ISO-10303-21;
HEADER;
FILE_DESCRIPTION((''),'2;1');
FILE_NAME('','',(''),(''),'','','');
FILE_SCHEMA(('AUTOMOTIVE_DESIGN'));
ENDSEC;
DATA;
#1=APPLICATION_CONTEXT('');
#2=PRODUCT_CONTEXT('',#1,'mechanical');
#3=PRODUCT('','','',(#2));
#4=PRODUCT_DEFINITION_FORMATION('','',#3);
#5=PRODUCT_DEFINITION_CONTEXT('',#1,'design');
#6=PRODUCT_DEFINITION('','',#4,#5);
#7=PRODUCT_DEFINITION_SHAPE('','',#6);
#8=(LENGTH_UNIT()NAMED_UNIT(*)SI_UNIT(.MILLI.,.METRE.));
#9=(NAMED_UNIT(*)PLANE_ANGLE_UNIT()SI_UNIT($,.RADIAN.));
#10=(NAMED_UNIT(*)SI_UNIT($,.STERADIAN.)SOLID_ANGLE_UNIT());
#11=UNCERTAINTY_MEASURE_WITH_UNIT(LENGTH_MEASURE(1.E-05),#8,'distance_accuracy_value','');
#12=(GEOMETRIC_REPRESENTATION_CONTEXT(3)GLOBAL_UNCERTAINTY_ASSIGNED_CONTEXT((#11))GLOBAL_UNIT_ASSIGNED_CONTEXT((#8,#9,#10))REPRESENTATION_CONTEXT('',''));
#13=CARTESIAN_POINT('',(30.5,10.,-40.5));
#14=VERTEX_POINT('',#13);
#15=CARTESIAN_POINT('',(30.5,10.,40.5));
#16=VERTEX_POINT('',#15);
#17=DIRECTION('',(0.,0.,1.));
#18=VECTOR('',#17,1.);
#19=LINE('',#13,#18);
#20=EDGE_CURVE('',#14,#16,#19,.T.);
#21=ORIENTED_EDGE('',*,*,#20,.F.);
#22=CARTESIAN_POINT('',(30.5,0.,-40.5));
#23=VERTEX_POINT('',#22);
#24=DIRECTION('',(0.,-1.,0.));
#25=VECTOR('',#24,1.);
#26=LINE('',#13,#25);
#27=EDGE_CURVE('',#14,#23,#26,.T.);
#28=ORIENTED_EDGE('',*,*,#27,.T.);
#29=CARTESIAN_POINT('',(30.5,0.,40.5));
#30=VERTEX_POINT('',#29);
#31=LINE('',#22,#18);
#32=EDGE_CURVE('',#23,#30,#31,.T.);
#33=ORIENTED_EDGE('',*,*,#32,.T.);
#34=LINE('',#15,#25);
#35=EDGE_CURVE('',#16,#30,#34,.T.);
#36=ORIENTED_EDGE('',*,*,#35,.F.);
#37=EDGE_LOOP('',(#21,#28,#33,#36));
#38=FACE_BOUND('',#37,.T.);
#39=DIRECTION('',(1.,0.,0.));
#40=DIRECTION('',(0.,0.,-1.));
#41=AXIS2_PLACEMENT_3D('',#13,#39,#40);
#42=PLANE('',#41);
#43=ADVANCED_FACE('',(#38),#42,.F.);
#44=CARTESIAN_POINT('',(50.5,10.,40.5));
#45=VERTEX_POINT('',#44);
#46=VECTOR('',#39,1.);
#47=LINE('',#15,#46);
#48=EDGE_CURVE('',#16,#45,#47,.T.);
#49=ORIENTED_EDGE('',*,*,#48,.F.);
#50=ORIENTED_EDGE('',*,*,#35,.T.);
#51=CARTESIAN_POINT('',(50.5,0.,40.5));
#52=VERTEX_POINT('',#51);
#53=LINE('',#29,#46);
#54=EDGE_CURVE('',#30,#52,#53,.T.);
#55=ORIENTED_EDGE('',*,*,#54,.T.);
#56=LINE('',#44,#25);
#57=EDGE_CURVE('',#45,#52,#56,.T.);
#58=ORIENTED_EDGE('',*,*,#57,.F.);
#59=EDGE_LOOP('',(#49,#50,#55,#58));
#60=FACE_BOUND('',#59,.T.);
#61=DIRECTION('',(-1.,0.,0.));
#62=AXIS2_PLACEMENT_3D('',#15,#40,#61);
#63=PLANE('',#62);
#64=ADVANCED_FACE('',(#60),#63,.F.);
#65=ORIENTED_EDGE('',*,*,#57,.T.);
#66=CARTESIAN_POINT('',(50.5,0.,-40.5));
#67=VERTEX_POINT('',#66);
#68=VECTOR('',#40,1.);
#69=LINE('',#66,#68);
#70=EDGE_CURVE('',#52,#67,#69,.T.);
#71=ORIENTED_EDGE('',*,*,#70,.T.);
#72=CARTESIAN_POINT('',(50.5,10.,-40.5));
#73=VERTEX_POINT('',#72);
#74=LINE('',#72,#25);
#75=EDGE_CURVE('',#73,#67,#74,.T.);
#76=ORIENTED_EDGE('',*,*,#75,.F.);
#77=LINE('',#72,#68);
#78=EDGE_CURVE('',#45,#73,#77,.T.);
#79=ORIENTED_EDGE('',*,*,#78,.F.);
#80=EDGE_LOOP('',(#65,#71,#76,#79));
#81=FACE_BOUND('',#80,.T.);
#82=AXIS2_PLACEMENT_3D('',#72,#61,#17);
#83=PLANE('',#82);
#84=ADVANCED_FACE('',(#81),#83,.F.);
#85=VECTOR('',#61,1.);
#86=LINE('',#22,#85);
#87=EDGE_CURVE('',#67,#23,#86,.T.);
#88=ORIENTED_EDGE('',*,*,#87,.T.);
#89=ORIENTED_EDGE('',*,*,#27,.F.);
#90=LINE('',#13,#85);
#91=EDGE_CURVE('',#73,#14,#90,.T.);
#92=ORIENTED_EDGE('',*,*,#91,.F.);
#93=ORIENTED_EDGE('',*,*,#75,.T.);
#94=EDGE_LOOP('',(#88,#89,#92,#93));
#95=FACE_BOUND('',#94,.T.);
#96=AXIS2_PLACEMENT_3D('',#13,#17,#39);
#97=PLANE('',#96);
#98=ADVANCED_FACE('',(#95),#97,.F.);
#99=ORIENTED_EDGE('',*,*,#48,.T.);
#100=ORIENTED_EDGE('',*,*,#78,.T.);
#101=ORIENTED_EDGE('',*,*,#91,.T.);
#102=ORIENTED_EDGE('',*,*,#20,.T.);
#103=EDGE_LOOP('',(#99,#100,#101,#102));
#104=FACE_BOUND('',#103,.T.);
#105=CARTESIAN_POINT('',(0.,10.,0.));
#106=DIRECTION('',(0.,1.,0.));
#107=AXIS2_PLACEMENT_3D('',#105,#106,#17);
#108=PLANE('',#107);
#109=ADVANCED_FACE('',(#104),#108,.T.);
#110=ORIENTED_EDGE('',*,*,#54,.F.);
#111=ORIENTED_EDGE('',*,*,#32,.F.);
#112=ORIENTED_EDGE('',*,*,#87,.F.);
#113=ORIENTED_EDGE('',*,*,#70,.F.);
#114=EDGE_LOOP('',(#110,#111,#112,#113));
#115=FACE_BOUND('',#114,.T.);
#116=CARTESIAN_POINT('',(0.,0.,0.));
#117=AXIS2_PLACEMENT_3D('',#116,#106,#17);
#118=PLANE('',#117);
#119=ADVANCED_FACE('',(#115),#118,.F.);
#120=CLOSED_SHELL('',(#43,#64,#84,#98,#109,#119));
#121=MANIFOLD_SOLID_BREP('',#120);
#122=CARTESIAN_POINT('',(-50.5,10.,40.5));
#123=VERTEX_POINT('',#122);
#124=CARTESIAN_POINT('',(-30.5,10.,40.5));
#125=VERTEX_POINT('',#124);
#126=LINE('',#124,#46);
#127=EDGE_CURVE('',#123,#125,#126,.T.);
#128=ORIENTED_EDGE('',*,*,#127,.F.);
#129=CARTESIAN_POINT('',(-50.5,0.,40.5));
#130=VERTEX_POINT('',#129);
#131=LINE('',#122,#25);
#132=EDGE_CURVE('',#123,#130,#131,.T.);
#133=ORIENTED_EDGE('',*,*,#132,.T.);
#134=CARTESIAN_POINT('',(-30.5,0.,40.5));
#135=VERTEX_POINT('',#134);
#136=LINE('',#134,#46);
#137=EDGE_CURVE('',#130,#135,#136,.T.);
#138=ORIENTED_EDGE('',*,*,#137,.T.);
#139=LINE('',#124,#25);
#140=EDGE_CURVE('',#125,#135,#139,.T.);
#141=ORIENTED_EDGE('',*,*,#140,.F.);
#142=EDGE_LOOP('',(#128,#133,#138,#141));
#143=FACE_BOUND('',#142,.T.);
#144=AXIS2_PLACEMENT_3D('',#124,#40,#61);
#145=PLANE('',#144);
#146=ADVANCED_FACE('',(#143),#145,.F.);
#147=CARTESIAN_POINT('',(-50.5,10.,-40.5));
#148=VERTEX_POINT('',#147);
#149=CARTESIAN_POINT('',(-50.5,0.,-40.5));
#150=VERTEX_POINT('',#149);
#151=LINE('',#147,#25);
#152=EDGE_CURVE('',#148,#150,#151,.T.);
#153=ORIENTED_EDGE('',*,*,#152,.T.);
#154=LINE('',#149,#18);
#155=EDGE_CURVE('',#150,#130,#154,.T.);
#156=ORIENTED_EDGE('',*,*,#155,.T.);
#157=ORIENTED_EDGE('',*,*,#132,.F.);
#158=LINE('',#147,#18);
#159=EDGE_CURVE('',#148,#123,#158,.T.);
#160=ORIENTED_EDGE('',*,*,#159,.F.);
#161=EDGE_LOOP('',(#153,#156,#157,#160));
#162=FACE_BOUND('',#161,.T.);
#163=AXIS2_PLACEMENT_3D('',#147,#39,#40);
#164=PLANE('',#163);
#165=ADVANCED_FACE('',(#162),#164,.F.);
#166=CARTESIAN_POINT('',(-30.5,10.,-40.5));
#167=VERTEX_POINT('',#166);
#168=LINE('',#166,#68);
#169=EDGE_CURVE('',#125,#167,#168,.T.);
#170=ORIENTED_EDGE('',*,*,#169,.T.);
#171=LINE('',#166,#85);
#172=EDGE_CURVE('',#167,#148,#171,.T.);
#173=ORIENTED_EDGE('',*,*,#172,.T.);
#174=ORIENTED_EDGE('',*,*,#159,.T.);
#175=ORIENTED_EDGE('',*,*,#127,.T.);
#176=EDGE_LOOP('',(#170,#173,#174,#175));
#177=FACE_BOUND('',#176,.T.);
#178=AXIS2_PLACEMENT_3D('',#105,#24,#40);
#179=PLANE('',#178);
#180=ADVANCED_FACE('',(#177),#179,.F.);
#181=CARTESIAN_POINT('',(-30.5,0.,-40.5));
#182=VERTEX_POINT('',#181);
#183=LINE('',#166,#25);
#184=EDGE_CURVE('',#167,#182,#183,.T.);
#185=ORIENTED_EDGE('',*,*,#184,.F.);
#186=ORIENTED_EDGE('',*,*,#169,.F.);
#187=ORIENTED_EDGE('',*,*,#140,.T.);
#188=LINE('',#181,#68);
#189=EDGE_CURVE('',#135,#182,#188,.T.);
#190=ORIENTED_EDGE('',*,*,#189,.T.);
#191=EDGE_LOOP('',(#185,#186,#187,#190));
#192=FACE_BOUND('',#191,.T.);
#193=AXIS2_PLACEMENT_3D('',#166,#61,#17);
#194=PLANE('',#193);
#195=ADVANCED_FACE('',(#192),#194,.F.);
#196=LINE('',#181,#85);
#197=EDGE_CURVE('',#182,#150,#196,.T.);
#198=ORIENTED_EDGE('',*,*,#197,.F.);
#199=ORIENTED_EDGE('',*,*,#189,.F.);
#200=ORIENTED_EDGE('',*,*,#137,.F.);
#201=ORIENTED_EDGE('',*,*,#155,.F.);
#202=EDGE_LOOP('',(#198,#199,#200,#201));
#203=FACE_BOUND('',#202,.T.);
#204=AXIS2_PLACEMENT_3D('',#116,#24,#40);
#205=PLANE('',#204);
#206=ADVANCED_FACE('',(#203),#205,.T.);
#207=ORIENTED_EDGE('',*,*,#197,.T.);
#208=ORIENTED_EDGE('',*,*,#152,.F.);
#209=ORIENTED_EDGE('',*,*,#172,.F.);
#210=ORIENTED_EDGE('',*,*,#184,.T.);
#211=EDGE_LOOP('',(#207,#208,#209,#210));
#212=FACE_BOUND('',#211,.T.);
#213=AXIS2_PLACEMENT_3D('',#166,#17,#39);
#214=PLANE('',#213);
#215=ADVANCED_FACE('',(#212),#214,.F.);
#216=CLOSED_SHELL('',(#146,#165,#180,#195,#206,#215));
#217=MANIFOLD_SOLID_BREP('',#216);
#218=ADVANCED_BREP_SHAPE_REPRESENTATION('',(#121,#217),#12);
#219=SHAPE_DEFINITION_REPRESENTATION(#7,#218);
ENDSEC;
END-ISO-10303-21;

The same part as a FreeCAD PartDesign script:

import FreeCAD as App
import Part
import Sketcher

V = App.Vector


def add_polygon(sketch, points):
    """Adds a closed chain of lines whose ends are joined by coincident constraints."""
    first, n = sketch.GeometryCount, len(points)
    for a, b in zip(points, points[1:] + points[:1]):
        sketch.addGeometry(Part.LineSegment(App.Vector(*a, 0), App.Vector(*b, 0)), False)
    for i in range(n):
        sketch.addConstraint(Sketcher.Constraint("Coincident", first + i, 2, first + (i + 1) % n, 1))

doc = App.newDocument("Part")
body = doc.addObject("PartDesign::Body", "Body")

sketch1 = body.newObject("Sketcher::SketchObject", "Sketch")
sketch1.AttachmentSupport = (doc.getObject("XZ_Plane"), [""])
sketch1.MapMode = "FlatFace"
add_polygon(sketch1, [(-50.5, -40.5), (-50.5, 40.5), (-30.5, 40.5), (-30.5, -40.5)])
sketch1.addConstraint(Sketcher.Constraint("Vertical", 0))
sketch1.addConstraint(Sketcher.Constraint("Horizontal", 1))
sketch1.addConstraint(Sketcher.Constraint("Vertical", 2))
sketch1.addConstraint(Sketcher.Constraint("Horizontal", 3))
sketch1.addConstraint(Sketcher.Constraint("DistanceX", 1, 1, 1, 2, 20.0))
sketch1.addConstraint(Sketcher.Constraint("DistanceY", 0, 1, 0, 2, 81.0))
sketch1.addConstraint(Sketcher.Constraint("DistanceX", 0, 2, -1, 1, 50.5))
sketch1.addConstraint(Sketcher.Constraint("DistanceY", -1, 1, 0, 2, 40.5))
pad1 = body.newObject("PartDesign::Pad", "Pad")
pad1.Profile = sketch1
pad1.Length = 10
pad1.Reversed = True
body2 = doc.addObject("PartDesign::Body", "Body001")

sketch2 = body2.newObject("Sketcher::SketchObject", "Sketch001")
sketch2.AttachmentSupport = (doc.getObject("XZ_Plane001"), [""])
sketch2.MapMode = "FlatFace"
add_polygon(sketch2, [(30.5, -40.5), (30.5, 40.5), (50.5, 40.5), (50.5, -40.5)])
sketch2.addConstraint(Sketcher.Constraint("Vertical", 0))
sketch2.addConstraint(Sketcher.Constraint("Horizontal", 1))
sketch2.addConstraint(Sketcher.Constraint("Vertical", 2))
sketch2.addConstraint(Sketcher.Constraint("Horizontal", 3))
sketch2.addConstraint(Sketcher.Constraint("DistanceX", 1, 1, 1, 2, 20.0))
sketch2.addConstraint(Sketcher.Constraint("DistanceY", 0, 1, 0, 2, 81.0))
sketch2.addConstraint(Sketcher.Constraint("DistanceX", -1, 1, 0, 2, 30.5))
sketch2.addConstraint(Sketcher.Constraint("DistanceY", -1, 1, 0, 2, 40.5))
pad2 = body2.newObject("PartDesign::Pad", "Pad001")
pad2.Profile = sketch2
pad2.Length = 10
pad2.Reversed = True

doc.recompute()
